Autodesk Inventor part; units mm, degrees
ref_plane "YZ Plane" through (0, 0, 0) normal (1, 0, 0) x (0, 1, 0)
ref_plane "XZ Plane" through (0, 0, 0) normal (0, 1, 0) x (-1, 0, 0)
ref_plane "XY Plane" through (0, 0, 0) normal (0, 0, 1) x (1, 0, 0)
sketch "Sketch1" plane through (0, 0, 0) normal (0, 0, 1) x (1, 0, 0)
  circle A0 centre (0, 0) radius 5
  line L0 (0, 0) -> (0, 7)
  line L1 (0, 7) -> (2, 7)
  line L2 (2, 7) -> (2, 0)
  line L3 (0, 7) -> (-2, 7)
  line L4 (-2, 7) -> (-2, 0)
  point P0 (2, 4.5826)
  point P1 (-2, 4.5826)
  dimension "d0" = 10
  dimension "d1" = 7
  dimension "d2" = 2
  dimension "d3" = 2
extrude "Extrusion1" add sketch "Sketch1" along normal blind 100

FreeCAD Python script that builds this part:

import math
import FreeCAD as App
import Part
import Sketcher
from FreeCAD import Vector

doc = App.newDocument("Part")
body = doc.addObject("PartDesign::Body", "Body")

sketch1 = doc.addObject("Sketcher::SketchObject", "Sketch")
body.addObject(sketch1)
sketch1.AttachmentSupport = (doc.XY_Plane, [""])
sketch1.MapMode = "FlatFace"
sketch1.addGeometry(Part.ArcOfCircle(Part.Circle(Vector(0, 0, 0), Vector(0, 0, 1), 5), math.radians(114), math.radians(426)), False)
sketch1.addGeometry(Part.LineSegment(Vector(2, 4.6, 0), Vector(2, 7, 0)), False)
sketch1.addGeometry(Part.LineSegment(Vector(2, 7, 0), Vector(-2, 7, 0)), False)
sketch1.addGeometry(Part.LineSegment(Vector(-2, 7, 0), Vector(-2, 4.6, 0)), False)
sketch1.addConstraint(Sketcher.Constraint("Coincident", 0, 2, 1, 1))
sketch1.addConstraint(Sketcher.Constraint("Coincident", 1, 2, 2, 1))
sketch1.addConstraint(Sketcher.Constraint("Coincident", 2, 2, 3, 1))
sketch1.addConstraint(Sketcher.Constraint("Coincident", 3, 2, 0, 1))
sketch1.addConstraint(Sketcher.Constraint("Vertical", 1))
sketch1.addConstraint(Sketcher.Constraint("Horizontal", 2))
sketch1.addConstraint(Sketcher.Constraint("Vertical", 3))
sketch1.addConstraint(Sketcher.Constraint("Coincident", 0, 3, -1, 1))
sketch1.addConstraint(Sketcher.Constraint("Horizontal", 0, 2, 3, 2))
sketch1.addConstraint(Sketcher.Constraint("Radius", 0, 5.0))
sketch1.addConstraint(Sketcher.Constraint("DistanceX", -1, 1, 0, 2, 2.0))
sketch1.addConstraint(Sketcher.Constraint("DistanceY", -1, 1, 1, 2, 7.0))
pad1 = doc.addObject("PartDesign::Pad", "Pad")
body.addObject(pad1)
pad1.Profile = sketch1
pad1.Length = 100

doc.recompute()
